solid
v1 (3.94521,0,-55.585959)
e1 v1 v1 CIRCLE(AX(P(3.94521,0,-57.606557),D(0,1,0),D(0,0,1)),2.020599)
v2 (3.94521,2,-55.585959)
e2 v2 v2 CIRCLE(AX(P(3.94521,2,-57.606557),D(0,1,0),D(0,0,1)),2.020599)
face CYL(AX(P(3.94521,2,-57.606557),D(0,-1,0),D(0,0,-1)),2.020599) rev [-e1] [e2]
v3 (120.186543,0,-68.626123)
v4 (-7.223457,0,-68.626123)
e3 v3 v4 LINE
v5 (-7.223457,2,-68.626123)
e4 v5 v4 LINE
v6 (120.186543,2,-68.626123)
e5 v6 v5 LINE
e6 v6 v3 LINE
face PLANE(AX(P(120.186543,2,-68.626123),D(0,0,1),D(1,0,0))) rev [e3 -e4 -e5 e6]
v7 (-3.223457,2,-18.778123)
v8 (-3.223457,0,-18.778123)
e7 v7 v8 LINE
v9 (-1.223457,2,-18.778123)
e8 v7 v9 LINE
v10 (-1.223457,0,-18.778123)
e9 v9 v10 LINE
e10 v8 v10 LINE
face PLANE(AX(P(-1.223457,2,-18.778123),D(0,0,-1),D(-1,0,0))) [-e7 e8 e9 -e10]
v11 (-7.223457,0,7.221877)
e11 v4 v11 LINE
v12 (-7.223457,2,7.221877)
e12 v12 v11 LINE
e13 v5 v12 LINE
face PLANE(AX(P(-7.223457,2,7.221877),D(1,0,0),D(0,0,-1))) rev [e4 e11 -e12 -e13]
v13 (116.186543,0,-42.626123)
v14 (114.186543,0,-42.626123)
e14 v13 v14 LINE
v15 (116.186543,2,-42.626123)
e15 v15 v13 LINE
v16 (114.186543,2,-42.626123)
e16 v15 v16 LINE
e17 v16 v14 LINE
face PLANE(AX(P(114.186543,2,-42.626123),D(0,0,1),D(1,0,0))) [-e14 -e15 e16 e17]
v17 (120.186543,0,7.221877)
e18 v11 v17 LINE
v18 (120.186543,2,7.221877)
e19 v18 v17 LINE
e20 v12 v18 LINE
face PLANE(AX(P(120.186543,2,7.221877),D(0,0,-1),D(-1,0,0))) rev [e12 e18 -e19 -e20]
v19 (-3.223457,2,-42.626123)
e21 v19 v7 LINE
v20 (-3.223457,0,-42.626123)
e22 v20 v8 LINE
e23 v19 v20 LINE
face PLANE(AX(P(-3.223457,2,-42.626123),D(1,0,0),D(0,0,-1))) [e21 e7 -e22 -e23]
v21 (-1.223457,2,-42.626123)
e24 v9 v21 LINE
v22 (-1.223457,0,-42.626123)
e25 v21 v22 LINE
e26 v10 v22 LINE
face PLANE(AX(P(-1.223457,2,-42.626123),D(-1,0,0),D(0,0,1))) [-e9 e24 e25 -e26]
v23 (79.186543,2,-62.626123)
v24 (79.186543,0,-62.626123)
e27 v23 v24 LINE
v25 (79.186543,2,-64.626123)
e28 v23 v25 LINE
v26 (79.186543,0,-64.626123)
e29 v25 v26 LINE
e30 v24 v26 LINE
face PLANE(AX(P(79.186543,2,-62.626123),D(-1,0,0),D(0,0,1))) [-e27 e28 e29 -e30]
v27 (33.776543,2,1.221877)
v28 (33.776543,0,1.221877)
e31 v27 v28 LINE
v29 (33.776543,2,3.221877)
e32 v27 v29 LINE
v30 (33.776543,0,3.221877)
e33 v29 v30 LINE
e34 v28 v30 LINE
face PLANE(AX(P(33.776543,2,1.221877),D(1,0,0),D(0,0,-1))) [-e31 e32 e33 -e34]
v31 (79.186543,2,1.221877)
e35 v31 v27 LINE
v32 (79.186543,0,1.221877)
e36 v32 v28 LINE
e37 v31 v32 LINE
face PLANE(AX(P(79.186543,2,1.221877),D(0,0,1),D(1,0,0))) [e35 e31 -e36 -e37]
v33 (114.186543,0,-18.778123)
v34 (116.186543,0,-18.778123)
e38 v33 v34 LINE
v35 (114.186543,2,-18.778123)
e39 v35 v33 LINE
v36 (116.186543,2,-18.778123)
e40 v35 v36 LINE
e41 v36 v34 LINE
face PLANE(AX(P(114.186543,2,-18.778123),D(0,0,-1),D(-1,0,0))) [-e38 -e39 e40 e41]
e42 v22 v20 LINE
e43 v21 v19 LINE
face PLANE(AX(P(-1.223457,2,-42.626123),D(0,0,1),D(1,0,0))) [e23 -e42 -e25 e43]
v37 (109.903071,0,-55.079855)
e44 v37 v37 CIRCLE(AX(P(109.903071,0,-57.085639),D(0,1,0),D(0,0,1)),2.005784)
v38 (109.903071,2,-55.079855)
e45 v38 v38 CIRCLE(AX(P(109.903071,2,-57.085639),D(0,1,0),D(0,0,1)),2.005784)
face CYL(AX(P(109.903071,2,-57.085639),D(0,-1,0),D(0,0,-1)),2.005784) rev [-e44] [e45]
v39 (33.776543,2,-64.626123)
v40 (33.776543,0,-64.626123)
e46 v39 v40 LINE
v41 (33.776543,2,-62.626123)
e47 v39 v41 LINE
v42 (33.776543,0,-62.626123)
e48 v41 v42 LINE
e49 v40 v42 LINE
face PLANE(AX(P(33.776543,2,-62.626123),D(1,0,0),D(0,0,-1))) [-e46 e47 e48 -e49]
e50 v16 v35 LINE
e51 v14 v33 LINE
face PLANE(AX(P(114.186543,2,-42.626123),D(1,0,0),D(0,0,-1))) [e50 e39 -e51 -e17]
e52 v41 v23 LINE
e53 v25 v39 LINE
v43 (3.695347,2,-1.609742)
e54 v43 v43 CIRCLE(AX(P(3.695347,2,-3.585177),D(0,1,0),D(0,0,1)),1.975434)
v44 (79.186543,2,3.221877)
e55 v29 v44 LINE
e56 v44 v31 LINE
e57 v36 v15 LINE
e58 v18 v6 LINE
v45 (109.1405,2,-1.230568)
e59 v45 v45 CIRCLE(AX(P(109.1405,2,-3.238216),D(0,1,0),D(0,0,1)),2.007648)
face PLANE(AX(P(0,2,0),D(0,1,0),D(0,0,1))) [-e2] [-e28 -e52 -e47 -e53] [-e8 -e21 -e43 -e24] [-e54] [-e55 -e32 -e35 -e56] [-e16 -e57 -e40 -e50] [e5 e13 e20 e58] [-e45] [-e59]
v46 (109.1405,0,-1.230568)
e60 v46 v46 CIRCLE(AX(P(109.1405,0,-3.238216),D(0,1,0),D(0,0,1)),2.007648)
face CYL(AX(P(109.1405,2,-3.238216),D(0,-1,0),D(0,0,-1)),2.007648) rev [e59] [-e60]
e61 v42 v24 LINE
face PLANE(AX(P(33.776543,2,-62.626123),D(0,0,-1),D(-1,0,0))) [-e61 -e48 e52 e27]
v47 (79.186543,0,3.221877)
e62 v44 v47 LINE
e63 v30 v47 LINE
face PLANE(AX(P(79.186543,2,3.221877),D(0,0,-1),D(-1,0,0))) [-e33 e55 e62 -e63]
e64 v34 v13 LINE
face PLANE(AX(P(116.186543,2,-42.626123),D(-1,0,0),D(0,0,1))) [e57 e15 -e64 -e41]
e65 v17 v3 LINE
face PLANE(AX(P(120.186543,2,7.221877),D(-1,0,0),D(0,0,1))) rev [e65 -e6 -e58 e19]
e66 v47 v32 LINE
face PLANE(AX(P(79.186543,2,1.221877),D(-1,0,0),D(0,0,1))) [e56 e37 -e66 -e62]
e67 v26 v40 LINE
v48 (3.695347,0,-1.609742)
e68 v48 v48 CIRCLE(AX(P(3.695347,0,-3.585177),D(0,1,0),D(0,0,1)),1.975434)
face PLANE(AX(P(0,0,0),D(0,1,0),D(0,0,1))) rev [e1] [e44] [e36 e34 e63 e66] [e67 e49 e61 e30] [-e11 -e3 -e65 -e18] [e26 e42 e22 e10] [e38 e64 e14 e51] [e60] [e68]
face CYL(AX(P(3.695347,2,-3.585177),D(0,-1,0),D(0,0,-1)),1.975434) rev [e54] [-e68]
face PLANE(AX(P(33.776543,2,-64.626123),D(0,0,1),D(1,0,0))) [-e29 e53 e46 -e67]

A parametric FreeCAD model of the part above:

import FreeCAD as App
import Part
import Sketcher

doc = App.newDocument("Part")
params = doc.addObject("Spreadsheet::Sheet", "Params")
for row, (alias, value) in enumerate([
    ("sketch1_width", "2 mm"),
    ("sketch1_width2", "127.41 mm"),
    ("pad1_length", "2 mm"),
], start=1):
    params.set(f"A{row}", alias)
    params.set(f"B{row}", "=" + value)
    params.setAlias(f"B{row}", alias)

body = doc.addObject("PartDesign::Body", "Body")

# Sketch on XZ plane
sketch1 = doc.addObject("Sketcher::SketchObject", "Sketch")
body.addObject(sketch1)
sketch1.AttachmentSupport = (doc.XZ_Plane, [""])
sketch1.MapMode = "FlatFace"
sketch1.addGeometry([
    Part.LineSegment(App.Vector(-7.2, -68.6, 0), App.Vector(-7.2, 7.2, 0)),  # 0
    Part.LineSegment(App.Vector(-7.2, 7.2, 0), App.Vector(120.2, 7.2, 0)),  # 1
    Part.LineSegment(App.Vector(120.2, 7.2, 0), App.Vector(120.2, -68.6, 0)),  # 2
    Part.LineSegment(App.Vector(120.2, -68.6, 0), App.Vector(-7.2, -68.6, 0)),  # 3
    Part.Circle(App.Vector(3.7, -3.6, 0), App.Vector(0, 0, 1), 2),  # 4
    Part.LineSegment(App.Vector(-1.2, -18.8, 0), App.Vector(-3.2, -18.8, 0)),  # 5
    Part.LineSegment(App.Vector(-3.2, -18.8, 0), App.Vector(-3.2, -42.6, 0)),  # 6
    Part.LineSegment(App.Vector(-3.2, -42.6, 0), App.Vector(-1.2, -42.6, 0)),  # 7
    Part.LineSegment(App.Vector(-1.2, -42.6, 0), App.Vector(-1.2, -18.8, 0)),  # 8
    Part.LineSegment(App.Vector(79.2, 3.2, 0), App.Vector(33.8, 3.2, 0)),  # 9
    Part.LineSegment(App.Vector(33.8, 3.2, 0), App.Vector(33.8, 1.2, 0)),  # 10
    Part.LineSegment(App.Vector(33.8, 1.2, 0), App.Vector(79.2, 1.2, 0)),  # 11
    Part.LineSegment(App.Vector(79.2, 1.2, 0), App.Vector(79.2, 3.2, 0)),  # 12
    Part.Circle(App.Vector(109.1, -3.2, 0), App.Vector(0, 0, 1), 2),  # 13
    Part.LineSegment(App.Vector(116.2, -18.8, 0), App.Vector(114.2, -18.8, 0)),  # 14
    Part.LineSegment(App.Vector(114.2, -18.8, 0), App.Vector(114.2, -42.6, 0)),  # 15
    Part.LineSegment(App.Vector(114.2, -42.6, 0), App.Vector(116.2, -42.6, 0)),  # 16
    Part.LineSegment(App.Vector(116.2, -42.6, 0), App.Vector(116.2, -18.8, 0)),  # 17
    Part.Circle(App.Vector(3.9, -57.6, 0), App.Vector(0, 0, 1), 2),  # 18
    Part.LineSegment(App.Vector(79.2, -62.6, 0), App.Vector(33.8, -62.6, 0)),  # 19
    Part.LineSegment(App.Vector(33.8, -62.6, 0), App.Vector(33.8, -64.6, 0)),  # 20
    Part.LineSegment(App.Vector(33.8, -64.6, 0), App.Vector(79.2, -64.6, 0)),  # 21
    Part.LineSegment(App.Vector(79.2, -64.6, 0), App.Vector(79.2, -62.6, 0)),  # 22
    Part.Circle(App.Vector(109.9, -57.1, 0), App.Vector(0, 0, 1), 2),  # 23
], False)
sketch1.addConstraint([
    Sketcher.Constraint("Coincident", 0, 2, 1, 1),
    Sketcher.Constraint("Coincident", 1, 2, 2, 1),
    Sketcher.Constraint("Coincident", 2, 2, 3, 1),
    Sketcher.Constraint("Coincident", 3, 2, 0, 1),
    Sketcher.Constraint("Coincident", 5, 2, 6, 1),
    Sketcher.Constraint("Coincident", 6, 2, 7, 1),
    Sketcher.Constraint("Coincident", 7, 2, 8, 1),
    Sketcher.Constraint("Coincident", 8, 2, 5, 1),
    Sketcher.Constraint("Coincident", 9, 2, 10, 1),
    Sketcher.Constraint("Coincident", 10, 2, 11, 1),
    Sketcher.Constraint("Coincident", 11, 2, 12, 1),
    Sketcher.Constraint("Coincident", 12, 2, 9, 1),
    Sketcher.Constraint("Coincident", 14, 2, 15, 1),
    Sketcher.Constraint("Coincident", 15, 2, 16, 1),
    Sketcher.Constraint("Coincident", 16, 2, 17, 1),
    Sketcher.Constraint("Coincident", 17, 2, 14, 1),
    Sketcher.Constraint("Coincident", 19, 2, 20, 1),
    Sketcher.Constraint("Coincident", 20, 2, 21, 1),
    Sketcher.Constraint("Coincident", 21, 2, 22, 1),
    Sketcher.Constraint("Coincident", 22, 2, 19, 1),
    Sketcher.Constraint("Vertical", 0),
    Sketcher.Constraint("Horizontal", 1),
    Sketcher.Constraint("Vertical", 2),
    Sketcher.Constraint("Horizontal", 3),
    Sketcher.Constraint("Horizontal", 5),
    Sketcher.Constraint("Vertical", 6),
    Sketcher.Constraint("Horizontal", 7),
    Sketcher.Constraint("Vertical", 8),
    Sketcher.Constraint("Horizontal", 9),
    Sketcher.Constraint("Vertical", 10),
    Sketcher.Constraint("Horizontal", 11),
    Sketcher.Constraint("Vertical", 12),
    Sketcher.Constraint("Horizontal", 14),
    Sketcher.Constraint("Vertical", 15),
    Sketcher.Constraint("Horizontal", 16),
    Sketcher.Constraint("Vertical", 17),
    Sketcher.Constraint("Horizontal", 19),
    Sketcher.Constraint("Vertical", 20),
    Sketcher.Constraint("Horizontal", 21),
    Sketcher.Constraint("Vertical", 22),
    Sketcher.Constraint("Horizontal", 8, 2, 14, 2),
    Sketcher.Constraint("Horizontal", 7, 2, 15, 2),
    Sketcher.Constraint("Vertical", 10, 2, 19, 2),
    Sketcher.Constraint("Vertical", 12, 2, 21, 2),
    Sketcher.Constraint("Equal", 7, 14),
    Sketcher.Constraint("Equal", 16, 10),
    Sketcher.Constraint("Equal", 12, 20),
    Sketcher.Constraint("DistanceX", 5, 2, 5, 1, 2.0),
    Sketcher.Constraint("DistanceX", 0, 2, 5, 2, 4.0),
    Sketcher.Constraint("DistanceY", 5, 2, 0, 2, 26.0),
    Sketcher.Constraint("DistanceY", 3, 2, 6, 2, 26.0),
    Sketcher.Constraint("DistanceX", 0, 2, 9, 2, 41.0),
    Sketcher.Constraint("DistanceY", 9, 2, 0, 2, 4.0),
    Sketcher.Constraint("DistanceX", 11, 2, 1, 2, 41.0),
    Sketcher.Constraint("DistanceX", 14, 2, 1, 2, 6.0),
    Sketcher.Constraint("DistanceY", 19, 2, 7, 2, 20.0),
    Sketcher.Constraint("DistanceX", 1, 1, 1, 2, 127.41),
    Sketcher.Constraint("Diameter", 4, 3.950869),
    Sketcher.Constraint("Diameter", 23, 4.011569),
    Sketcher.Constraint("DistanceY", 0, 1, 0, 2, 75.848),
    Sketcher.Constraint("Diameter", 13, 4.015295),
    Sketcher.Constraint("Diameter", 18, 4.041197),
    Sketcher.Constraint("DistanceX", -1, 1, 13, 3, 109.1405),
    Sketcher.Constraint("DistanceX", -1, 1, 18, 3, 3.94521),
    Sketcher.Constraint("DistanceX", -1, 1, 23, 3, 109.903071),
    Sketcher.Constraint("DistanceY", 23, 3, -1, 1, 57.085639),
    Sketcher.Constraint("DistanceY", 4, 3, 13, 3, 0.346961),
    Sketcher.Constraint("DistanceY", 18, 3, 4, 3, 54.021381),
    Sketcher.Constraint("DistanceY", 18, 3, 23, 3, 0.520918),
    Sketcher.Constraint("DistanceX", -1, 1, 4, 3, 3.695347),
    Sketcher.Constraint("DistanceX", 0, 2, -1, 1, 7.223457),
    Sketcher.Constraint("DistanceY", -1, 1, 0, 2, 7.221877),
])
sketch1.setExpression("Constraints[47]", "Params.sketch1_width")
sketch1.setExpression("Constraints[56]", "Params.sketch1_width2")
pad1 = doc.addObject("PartDesign::Pad", "Pad")
body.addObject(pad1)
pad1.Profile = sketch1
pad1.setExpression("Length", "Params.pad1_length")
pad1.Reversed = True

doc.recompute()
